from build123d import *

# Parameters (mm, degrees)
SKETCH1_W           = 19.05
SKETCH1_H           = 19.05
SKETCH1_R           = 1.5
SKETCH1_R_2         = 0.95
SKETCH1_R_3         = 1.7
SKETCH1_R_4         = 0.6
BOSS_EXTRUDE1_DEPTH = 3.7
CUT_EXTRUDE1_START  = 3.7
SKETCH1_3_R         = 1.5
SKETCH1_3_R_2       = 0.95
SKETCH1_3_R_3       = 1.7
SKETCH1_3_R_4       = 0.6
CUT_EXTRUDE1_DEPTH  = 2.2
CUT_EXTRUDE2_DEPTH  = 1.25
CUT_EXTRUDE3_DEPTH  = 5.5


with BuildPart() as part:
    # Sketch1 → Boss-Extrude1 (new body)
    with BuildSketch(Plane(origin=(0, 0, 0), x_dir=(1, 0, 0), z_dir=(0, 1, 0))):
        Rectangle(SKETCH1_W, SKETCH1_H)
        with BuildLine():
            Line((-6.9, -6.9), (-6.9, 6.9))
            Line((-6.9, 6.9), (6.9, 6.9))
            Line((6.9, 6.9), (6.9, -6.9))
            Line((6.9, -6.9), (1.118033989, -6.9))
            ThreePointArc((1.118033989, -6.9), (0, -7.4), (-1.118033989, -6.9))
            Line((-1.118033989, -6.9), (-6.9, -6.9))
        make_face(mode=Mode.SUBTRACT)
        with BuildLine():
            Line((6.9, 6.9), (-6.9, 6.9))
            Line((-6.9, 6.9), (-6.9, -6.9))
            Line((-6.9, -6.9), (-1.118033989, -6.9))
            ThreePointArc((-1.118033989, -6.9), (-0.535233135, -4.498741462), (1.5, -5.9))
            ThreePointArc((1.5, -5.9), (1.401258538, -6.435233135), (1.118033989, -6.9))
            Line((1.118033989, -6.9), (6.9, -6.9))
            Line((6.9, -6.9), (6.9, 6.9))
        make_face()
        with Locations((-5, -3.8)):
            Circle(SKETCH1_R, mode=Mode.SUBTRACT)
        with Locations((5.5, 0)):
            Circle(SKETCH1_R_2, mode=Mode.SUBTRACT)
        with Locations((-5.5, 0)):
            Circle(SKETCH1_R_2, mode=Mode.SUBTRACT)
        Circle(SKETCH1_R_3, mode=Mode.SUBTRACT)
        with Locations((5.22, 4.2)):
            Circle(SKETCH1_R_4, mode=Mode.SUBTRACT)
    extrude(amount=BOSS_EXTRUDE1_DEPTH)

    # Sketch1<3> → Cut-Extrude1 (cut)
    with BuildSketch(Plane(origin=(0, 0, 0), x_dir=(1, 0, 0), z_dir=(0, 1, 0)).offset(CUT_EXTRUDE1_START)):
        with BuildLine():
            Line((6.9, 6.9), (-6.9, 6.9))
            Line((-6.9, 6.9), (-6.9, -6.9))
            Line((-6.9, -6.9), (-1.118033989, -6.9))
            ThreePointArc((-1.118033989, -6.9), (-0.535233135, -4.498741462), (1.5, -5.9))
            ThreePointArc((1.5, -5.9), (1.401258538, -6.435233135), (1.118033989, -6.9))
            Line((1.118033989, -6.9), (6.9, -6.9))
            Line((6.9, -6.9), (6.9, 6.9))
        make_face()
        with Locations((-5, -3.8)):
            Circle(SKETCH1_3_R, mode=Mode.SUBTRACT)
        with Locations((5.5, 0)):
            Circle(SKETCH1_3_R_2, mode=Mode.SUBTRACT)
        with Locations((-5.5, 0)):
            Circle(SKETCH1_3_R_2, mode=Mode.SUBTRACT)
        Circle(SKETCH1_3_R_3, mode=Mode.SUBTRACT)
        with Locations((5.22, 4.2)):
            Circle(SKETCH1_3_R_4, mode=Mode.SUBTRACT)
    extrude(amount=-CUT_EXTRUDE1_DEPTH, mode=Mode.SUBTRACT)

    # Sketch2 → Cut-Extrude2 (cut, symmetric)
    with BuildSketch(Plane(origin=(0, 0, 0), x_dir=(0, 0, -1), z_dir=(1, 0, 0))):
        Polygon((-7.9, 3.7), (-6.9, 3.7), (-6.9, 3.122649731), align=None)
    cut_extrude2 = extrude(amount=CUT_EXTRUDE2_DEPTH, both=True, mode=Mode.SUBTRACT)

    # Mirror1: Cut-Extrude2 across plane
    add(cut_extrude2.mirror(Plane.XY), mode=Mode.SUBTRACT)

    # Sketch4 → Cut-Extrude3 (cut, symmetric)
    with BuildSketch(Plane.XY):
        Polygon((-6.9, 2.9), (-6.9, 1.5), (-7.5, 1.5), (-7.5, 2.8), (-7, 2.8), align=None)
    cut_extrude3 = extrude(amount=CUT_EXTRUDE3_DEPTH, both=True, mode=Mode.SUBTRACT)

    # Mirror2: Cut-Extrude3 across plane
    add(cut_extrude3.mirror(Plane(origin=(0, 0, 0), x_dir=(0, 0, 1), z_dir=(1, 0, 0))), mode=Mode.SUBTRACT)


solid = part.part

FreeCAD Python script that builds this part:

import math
import FreeCAD as App
import Part
import Sketcher
Q = App.Units.Quantity

doc = App.newDocument("Part")
params = doc.addObject("Spreadsheet::Sheet", "Params")
for row, (alias, value) in enumerate([
    ("sketch1_diameter", "3 mm"),
    ("sketch1_diameter2", "1.9 mm"),
    ("sketch1_diameter3", "3.4 mm"),
    ("sketch1_diameter4", "1.2 mm"),
    ("sketch1_width", "19.05 mm"),
    ("pad1_length", "3.7 mm"),
    ("sketch2_diameter", "3 mm"),
    ("sketch2_diameter2", "1.9 mm"),
    ("sketch2_diameter3", "3.4 mm"),
    ("sketch2_diameter4", "1.2 mm"),
    ("sketch2_width", "13.8 mm"),
    ("pocket1_length", "2.2 mm"),
    ("sketch3_height", "1 mm"),
    ("pocket2_length", "2.5 mm"),
    ("sketch4_width", "0.5 mm"),
    ("sketch4_width2", "0.6 mm"),
    ("sketch4_height", "1.4 mm"),
    ("pocket3_length", "11 mm"),
], start=1):
    params.set(f"A{row}", alias)
    params.set(f"B{row}", "=" + value)
    params.setAlias(f"B{row}", alias)

body = doc.addObject("PartDesign::Body", "Body")

# Sketch on XZ plane
sketch1 = body.newObject("Sketcher::SketchObject", "Sketch")
sketch1.AttachmentSupport = (doc.getObject("XZ_Plane"), [""])
sketch1.MapMode = "FlatFace"
sketch1.addGeometry([
    Part.LineSegment(App.Vector(-9.5, -9.5, 0), App.Vector(-9.5, 9.5, 0)),  # 0
    Part.LineSegment(App.Vector(-9.5, 9.5, 0), App.Vector(9.5, 9.5, 0)),  # 1
    Part.LineSegment(App.Vector(9.5, 9.5, 0), App.Vector(9.5, -9.5, 0)),  # 2
    Part.LineSegment(App.Vector(9.5, -9.5, 0), App.Vector(-9.5, -9.5, 0)),  # 3
    Part.Circle(App.Vector(-5, 3.8, 0), App.Vector(0, 0, 1), 1.5),  # 4
    Part.ArcOfCircle(Part.Circle(App.Vector(0, 5.9, 0), App.Vector(0, 0, 1), 1.5), math.radians(42), math.radians(138)),  # 5
    Part.ArcOfCircle(Part.Circle(App.Vector(0, 5.9, 0), App.Vector(0, 0, 1), 1.5), math.radians(138), math.radians(360)),  # 6
    Part.ArcOfCircle(Part.Circle(App.Vector(0, 5.9, 0), App.Vector(0, 0, 1), 1.5), math.radians(0), math.radians(42)),  # 7
    Part.Circle(App.Vector(-5.5, 0, 0), App.Vector(0, 0, 1), 0.9),  # 8
    Part.Circle(App.Vector(0, 0, 0), App.Vector(0, 0, 1), 1.7),  # 9
    Part.Circle(App.Vector(5.5, 0, 0), App.Vector(0, 0, 1), 0.9),  # 10
    Part.Circle(App.Vector(5.2, -4.2, 0), App.Vector(0, 0, 1), 0.6),  # 11
], False)
sketch1.addConstraint([
    Sketcher.Constraint("Coincident", 0, 2, 1, 1),
    Sketcher.Constraint("Coincident", 1, 2, 2, 1),
    Sketcher.Constraint("Coincident", 2, 2, 3, 1),
    Sketcher.Constraint("Coincident", 3, 2, 0, 1),
    Sketcher.Constraint("Tangent", 5, 2, 6, 1),
    Sketcher.Constraint("Tangent", 6, 2, 7, 1),
    Sketcher.Constraint("Tangent", 7, 2, 5, 1),
    Sketcher.Constraint("Vertical", 0),
    Sketcher.Constraint("Horizontal", 1),
    Sketcher.Constraint("Vertical", 2),
    Sketcher.Constraint("Horizontal", 3),
    Sketcher.Constraint("Coincident", 9, 3, -1, 1),
    Sketcher.Constraint("Equal", 4, 5),
    Sketcher.Constraint("Equal", 8, 10),
    Sketcher.Constraint("Symmetric", 8, 3, 10, 3, -1, 1),
    Sketcher.Constraint("Symmetric", 0, 2, 2, 2, -1, 1),
    Sketcher.Constraint("Symmetric", 5, 2, 7, 2, -2),
    Sketcher.Constraint("PointOnObject", 8, 3, -1),
    Sketcher.Constraint("Horizontal", 7, 3, 6, 2),
    Sketcher.Constraint("Equal", 3, 0),
    Sketcher.Constraint("Diameter", 4, Q("3 mm")),
    Sketcher.Constraint("Diameter", 8, Q("1.9 mm")),
    Sketcher.Constraint("Diameter", 9, Q("3.4 mm")),
    Sketcher.Constraint("Diameter", 11, Q("1.2 mm")),
    Sketcher.Constraint("DistanceX", 4, 3, -1, 1, Q("5 mm")),
    Sketcher.Constraint("DistanceX", 8, 3, 10, 3, Q("11 mm")),
    Sketcher.Constraint("DistanceY", 7, 3, 5, 2, Q("1 mm")),
    Sketcher.Constraint("DistanceX", 1, 1, 1, 2, Q("19.05 mm")),
    Sketcher.Constraint("DistanceY", -1, 1, 4, 3, Q("3.8 mm")),
    Sketcher.Constraint("DistanceY", -1, 1, 5, 3, Q("5.9 mm")),
    Sketcher.Constraint("DistanceY", 11, 3, -1, 1, Q("4.2 mm")),
    Sketcher.Constraint("DistanceX", -1, 1, 11, 3, Q("5.22 mm")),
])
sketch1.setExpression("Constraints[20]", "Params.sketch1_diameter")
sketch1.setExpression("Constraints[21]", "Params.sketch1_diameter2")
sketch1.setExpression("Constraints[22]", "Params.sketch1_diameter3")
sketch1.setExpression("Constraints[23]", "Params.sketch1_diameter4")
sketch1.setExpression("Constraints[27]", "Params.sketch1_width")
pad1 = body.newObject("PartDesign::Pad", "Pad")
pad1.Profile = sketch1
pad1.setExpression("Length", "Params.pad1_length")
pad1.Reversed = True

# Sketch on XZ plane
sketch2 = body.newObject("Sketcher::SketchObject", "Sketch001")
sketch2.AttachmentSupport = (doc.getObject("XZ_Plane"), [""])
sketch2.MapMode = "FlatFace"
sketch2.AttachmentOffset = App.Placement(App.Vector(0, 0, -3.7), App.Rotation())
sketch2.addGeometry([
    Part.LineSegment(App.Vector(6.9, -6.9, 0), App.Vector(-6.9, -6.9, 0)),  # 0
    Part.LineSegment(App.Vector(-6.9, -6.9, 0), App.Vector(-6.9, 6.9, 0)),  # 1
    Part.LineSegment(App.Vector(-6.9, 6.9, 0), App.Vector(-1.1, 6.9, 0)),  # 2
    Part.ArcOfCircle(Part.Circle(App.Vector(0, 5.9, 0), App.Vector(0, 0, 1), 1.5), math.radians(138), math.radians(360)),  # 3
    Part.ArcOfCircle(Part.Circle(App.Vector(0, 5.9, 0), App.Vector(0, 0, 1), 1.5), math.radians(0), math.radians(42)),  # 4
    Part.LineSegment(App.Vector(1.1, 6.9, 0), App.Vector(6.9, 6.9, 0)),  # 5
    Part.LineSegment(App.Vector(6.9, 6.9, 0), App.Vector(6.9, -6.9, 0)),  # 6
    Part.Circle(App.Vector(-5, 3.8, 0), App.Vector(0, 0, 1), 1.5),  # 7
    Part.Circle(App.Vector(-5.5, 0, 0), App.Vector(0, 0, 1), 0.9),  # 8
    Part.Circle(App.Vector(0, 0, 0), App.Vector(0, 0, 1), 1.7),  # 9
    Part.Circle(App.Vector(5.5, 0, 0), App.Vector(0, 0, 1), 0.9),  # 10
    Part.Circle(App.Vector(5.2, -4.2, 0), App.Vector(0, 0, 1), 0.6),  # 11
], False)
sketch2.addConstraint([
    Sketcher.Constraint("Coincident", 0, 2, 1, 1),
    Sketcher.Constraint("Coincident", 1, 2, 2, 1),
    Sketcher.Constraint("Coincident", 2, 2, 3, 1),
    Sketcher.Constraint("Tangent", 3, 2, 4, 1),
    Sketcher.Constraint("Coincident", 4, 2, 5, 1),
    Sketcher.Constraint("Coincident", 5, 2, 6, 1),
    Sketcher.Constraint("Coincident", 6, 2, 0, 1),
    Sketcher.Constraint("Horizontal", 0),
    Sketcher.Constraint("Vertical", 1),
    Sketcher.Constraint("Horizontal", 2),
    Sketcher.Constraint("Horizontal", 5),
    Sketcher.Constraint("Vertical", 6),
    Sketcher.Constraint("Coincident", 9, 3, -1, 1),
    Sketcher.Constraint("Equal", 3, 4),
    Sketcher.Constraint("Equal", 4, 7),
    Sketcher.Constraint("Equal", 8, 10),
    Sketcher.Constraint("Symmetric", 8, 3, 10, 3, -1, 1),
    Sketcher.Constraint("Symmetric", 0, 2, 5, 2, -1, 1),
    Sketcher.Constraint("Symmetric", 2, 2, 4, 2, -2),
    Sketcher.Constraint("PointOnObject", 8, 3, -1),
    Sketcher.Constraint("Horizontal", 4, 3, 3, 2),
    Sketcher.Constraint("Equal", 0, 1),
    Sketcher.Constraint("Diameter", 7, Q("3 mm")),
    Sketcher.Constraint("Diameter", 8, Q("1.9 mm")),
    Sketcher.Constraint("Diameter", 9, Q("3.4 mm")),
    Sketcher.Constraint("Diameter", 11, Q("1.2 mm")),
    Sketcher.Constraint("DistanceX", 0, 2, 0, 1, Q("13.8 mm")),
    Sketcher.Constraint("DistanceX", 7, 3, -1, 1, Q("5 mm")),
    Sketcher.Constraint("DistanceX", 8, 3, 10, 3, Q("11 mm")),
    Sketcher.Constraint("DistanceY", 4, 3, 1, 2, Q("1 mm")),
    Sketcher.Constraint("DistanceY", -1, 1, 7, 3, Q("3.8 mm")),
    Sketcher.Constraint("DistanceY", 11, 3, -1, 1, Q("4.2 mm")),
    Sketcher.Constraint("DistanceX", -1, 1, 11, 3, Q("5.22 mm")),
])
sketch2.setExpression("Constraints[22]", "Params.sketch2_diameter")
sketch2.setExpression("Constraints[23]", "Params.sketch2_diameter2")
sketch2.setExpression("Constraints[24]", "Params.sketch2_diameter3")
sketch2.setExpression("Constraints[25]", "Params.sketch2_diameter4")
sketch2.setExpression("Constraints[26]", "Params.sketch2_width")
pocket1 = body.newObject("PartDesign::Pocket", "Pocket")
pocket1.Profile = sketch2
pocket1.setExpression("Length", "Params.pocket1_length")
pocket1.Reversed = True

# Sketch on YZ plane
sketch3 = body.newObject("Sketcher::SketchObject", "Sketch002")
sketch3.AttachmentSupport = (doc.getObject("YZ_Plane"), [""])
sketch3.MapMode = "FlatFace"
sketch3.addGeometry([
    Part.LineSegment(App.Vector(3.7, 6.9, 0), App.Vector(3.7, 7.9, 0)),
    Part.LineSegment(App.Vector(3.7, 7.9, 0), App.Vector(3.1, 6.9, 0)),
    Part.LineSegment(App.Vector(3.1, 6.9, 0), App.Vector(3.7, 6.9, 0)),
], False)
sketch3.addConstraint([
    Sketcher.Constraint("Coincident", 0, 2, 1, 1),
    Sketcher.Constraint("Coincident", 1, 2, 2, 1),
    Sketcher.Constraint("Coincident", 2, 2, 0, 1),
    Sketcher.Constraint("Vertical", 0),
    Sketcher.Constraint("Horizontal", 2),
    Sketcher.Constraint("DistanceY", 0, 1, 0, 2, Q("1 mm")),
    Sketcher.Constraint("Angle", 1, Q("-120 deg")),
    Sketcher.Constraint("DistanceX", -1, 1, 0, 2, Q("3.7 mm")),
    Sketcher.Constraint("DistanceY", -1, 1, 0, 2, Q("7.9 mm")),
])
sketch3.setExpression("Constraints[5]", "Params.sketch3_height")
pocket2 = body.newObject("PartDesign::Pocket", "Pocket001")
pocket2.Profile = sketch3
pocket2.setExpression("Length", "Params.pocket2_length")
pocket2.Midplane = True
doc.recompute()

mirrored = body.newObject("PartDesign::Mirrored", "Mirrored")
mirrored.Originals = [pocket2]
mirrored.MirrorPlane = (doc.getObject("XY_Plane"), [""])
body.Tip = mirrored

# Sketch on XY plane
sketch4 = body.newObject("Sketcher::SketchObject", "Sketch003")
sketch4.AttachmentSupport = (doc.getObject("XY_Plane"), [""])
sketch4.MapMode = "FlatFace"
sketch4.addGeometry([
    Part.LineSegment(App.Vector(-6.9, 1.5, 0), App.Vector(-6.9, 2.9, 0)),  # 0
    Part.LineSegment(App.Vector(-6.9, 2.9, 0), App.Vector(-7, 2.8, 0)),  # 1
    Part.LineSegment(App.Vector(-7, 2.8, 0), App.Vector(-7.5, 2.8, 0)),  # 2
    Part.LineSegment(App.Vector(-7.5, 2.8, 0), App.Vector(-7.5, 1.5, 0)),  # 3
    Part.LineSegment(App.Vector(-7.5, 1.5, 0), App.Vector(-6.9, 1.5, 0)),  # 4
], False)
sketch4.addConstraint([
    Sketcher.Constraint("Coincident", 0, 2, 1, 1),
    Sketcher.Constraint("Coincident", 1, 2, 2, 1),
    Sketcher.Constraint("Coincident", 2, 2, 3, 1),
    Sketcher.Constraint("Coincident", 3, 2, 4, 1),
    Sketcher.Constraint("Coincident", 4, 2, 0, 1),
    Sketcher.Constraint("Vertical", 0),
    Sketcher.Constraint("Horizontal", 2),
    Sketcher.Constraint("Vertical", 3),
    Sketcher.Constraint("Horizontal", 4),
    Sketcher.Constraint("Angle", 1, Q("-135 deg")),
    Sketcher.Constraint("DistanceX", 2, 2, 2, 1, Q("0.5 mm")),
    Sketcher.Constraint("DistanceX", 4, 1, 4, 2, Q("0.6 mm")),
    Sketcher.Constraint("DistanceY", 0, 1, 0, 2, Q("1.4 mm")),
    Sketcher.Constraint("DistanceX", 1, 2, -1, 1, Q("7 mm")),
    Sketcher.Constraint("DistanceY", -1, 1, 0, 2, Q("2.9 mm")),
])
sketch4.setExpression("Constraints[10]", "Params.sketch4_width")
sketch4.setExpression("Constraints[11]", "Params.sketch4_width2")
sketch4.setExpression("Constraints[12]", "Params.sketch4_height")
pocket3 = body.newObject("PartDesign::Pocket", "Pocket002")
pocket3.Profile = sketch4
pocket3.setExpression("Length", "Params.pocket3_length")
pocket3.Midplane = True
doc.recompute()

mirrored2 = body.newObject("PartDesign::Mirrored", "Mirrored001")
mirrored2.Originals = [pocket3]
mirrored2.MirrorPlane = (doc.getObject("YZ_Plane"), [""])
body.Tip = mirrored2

doc.recompute()
